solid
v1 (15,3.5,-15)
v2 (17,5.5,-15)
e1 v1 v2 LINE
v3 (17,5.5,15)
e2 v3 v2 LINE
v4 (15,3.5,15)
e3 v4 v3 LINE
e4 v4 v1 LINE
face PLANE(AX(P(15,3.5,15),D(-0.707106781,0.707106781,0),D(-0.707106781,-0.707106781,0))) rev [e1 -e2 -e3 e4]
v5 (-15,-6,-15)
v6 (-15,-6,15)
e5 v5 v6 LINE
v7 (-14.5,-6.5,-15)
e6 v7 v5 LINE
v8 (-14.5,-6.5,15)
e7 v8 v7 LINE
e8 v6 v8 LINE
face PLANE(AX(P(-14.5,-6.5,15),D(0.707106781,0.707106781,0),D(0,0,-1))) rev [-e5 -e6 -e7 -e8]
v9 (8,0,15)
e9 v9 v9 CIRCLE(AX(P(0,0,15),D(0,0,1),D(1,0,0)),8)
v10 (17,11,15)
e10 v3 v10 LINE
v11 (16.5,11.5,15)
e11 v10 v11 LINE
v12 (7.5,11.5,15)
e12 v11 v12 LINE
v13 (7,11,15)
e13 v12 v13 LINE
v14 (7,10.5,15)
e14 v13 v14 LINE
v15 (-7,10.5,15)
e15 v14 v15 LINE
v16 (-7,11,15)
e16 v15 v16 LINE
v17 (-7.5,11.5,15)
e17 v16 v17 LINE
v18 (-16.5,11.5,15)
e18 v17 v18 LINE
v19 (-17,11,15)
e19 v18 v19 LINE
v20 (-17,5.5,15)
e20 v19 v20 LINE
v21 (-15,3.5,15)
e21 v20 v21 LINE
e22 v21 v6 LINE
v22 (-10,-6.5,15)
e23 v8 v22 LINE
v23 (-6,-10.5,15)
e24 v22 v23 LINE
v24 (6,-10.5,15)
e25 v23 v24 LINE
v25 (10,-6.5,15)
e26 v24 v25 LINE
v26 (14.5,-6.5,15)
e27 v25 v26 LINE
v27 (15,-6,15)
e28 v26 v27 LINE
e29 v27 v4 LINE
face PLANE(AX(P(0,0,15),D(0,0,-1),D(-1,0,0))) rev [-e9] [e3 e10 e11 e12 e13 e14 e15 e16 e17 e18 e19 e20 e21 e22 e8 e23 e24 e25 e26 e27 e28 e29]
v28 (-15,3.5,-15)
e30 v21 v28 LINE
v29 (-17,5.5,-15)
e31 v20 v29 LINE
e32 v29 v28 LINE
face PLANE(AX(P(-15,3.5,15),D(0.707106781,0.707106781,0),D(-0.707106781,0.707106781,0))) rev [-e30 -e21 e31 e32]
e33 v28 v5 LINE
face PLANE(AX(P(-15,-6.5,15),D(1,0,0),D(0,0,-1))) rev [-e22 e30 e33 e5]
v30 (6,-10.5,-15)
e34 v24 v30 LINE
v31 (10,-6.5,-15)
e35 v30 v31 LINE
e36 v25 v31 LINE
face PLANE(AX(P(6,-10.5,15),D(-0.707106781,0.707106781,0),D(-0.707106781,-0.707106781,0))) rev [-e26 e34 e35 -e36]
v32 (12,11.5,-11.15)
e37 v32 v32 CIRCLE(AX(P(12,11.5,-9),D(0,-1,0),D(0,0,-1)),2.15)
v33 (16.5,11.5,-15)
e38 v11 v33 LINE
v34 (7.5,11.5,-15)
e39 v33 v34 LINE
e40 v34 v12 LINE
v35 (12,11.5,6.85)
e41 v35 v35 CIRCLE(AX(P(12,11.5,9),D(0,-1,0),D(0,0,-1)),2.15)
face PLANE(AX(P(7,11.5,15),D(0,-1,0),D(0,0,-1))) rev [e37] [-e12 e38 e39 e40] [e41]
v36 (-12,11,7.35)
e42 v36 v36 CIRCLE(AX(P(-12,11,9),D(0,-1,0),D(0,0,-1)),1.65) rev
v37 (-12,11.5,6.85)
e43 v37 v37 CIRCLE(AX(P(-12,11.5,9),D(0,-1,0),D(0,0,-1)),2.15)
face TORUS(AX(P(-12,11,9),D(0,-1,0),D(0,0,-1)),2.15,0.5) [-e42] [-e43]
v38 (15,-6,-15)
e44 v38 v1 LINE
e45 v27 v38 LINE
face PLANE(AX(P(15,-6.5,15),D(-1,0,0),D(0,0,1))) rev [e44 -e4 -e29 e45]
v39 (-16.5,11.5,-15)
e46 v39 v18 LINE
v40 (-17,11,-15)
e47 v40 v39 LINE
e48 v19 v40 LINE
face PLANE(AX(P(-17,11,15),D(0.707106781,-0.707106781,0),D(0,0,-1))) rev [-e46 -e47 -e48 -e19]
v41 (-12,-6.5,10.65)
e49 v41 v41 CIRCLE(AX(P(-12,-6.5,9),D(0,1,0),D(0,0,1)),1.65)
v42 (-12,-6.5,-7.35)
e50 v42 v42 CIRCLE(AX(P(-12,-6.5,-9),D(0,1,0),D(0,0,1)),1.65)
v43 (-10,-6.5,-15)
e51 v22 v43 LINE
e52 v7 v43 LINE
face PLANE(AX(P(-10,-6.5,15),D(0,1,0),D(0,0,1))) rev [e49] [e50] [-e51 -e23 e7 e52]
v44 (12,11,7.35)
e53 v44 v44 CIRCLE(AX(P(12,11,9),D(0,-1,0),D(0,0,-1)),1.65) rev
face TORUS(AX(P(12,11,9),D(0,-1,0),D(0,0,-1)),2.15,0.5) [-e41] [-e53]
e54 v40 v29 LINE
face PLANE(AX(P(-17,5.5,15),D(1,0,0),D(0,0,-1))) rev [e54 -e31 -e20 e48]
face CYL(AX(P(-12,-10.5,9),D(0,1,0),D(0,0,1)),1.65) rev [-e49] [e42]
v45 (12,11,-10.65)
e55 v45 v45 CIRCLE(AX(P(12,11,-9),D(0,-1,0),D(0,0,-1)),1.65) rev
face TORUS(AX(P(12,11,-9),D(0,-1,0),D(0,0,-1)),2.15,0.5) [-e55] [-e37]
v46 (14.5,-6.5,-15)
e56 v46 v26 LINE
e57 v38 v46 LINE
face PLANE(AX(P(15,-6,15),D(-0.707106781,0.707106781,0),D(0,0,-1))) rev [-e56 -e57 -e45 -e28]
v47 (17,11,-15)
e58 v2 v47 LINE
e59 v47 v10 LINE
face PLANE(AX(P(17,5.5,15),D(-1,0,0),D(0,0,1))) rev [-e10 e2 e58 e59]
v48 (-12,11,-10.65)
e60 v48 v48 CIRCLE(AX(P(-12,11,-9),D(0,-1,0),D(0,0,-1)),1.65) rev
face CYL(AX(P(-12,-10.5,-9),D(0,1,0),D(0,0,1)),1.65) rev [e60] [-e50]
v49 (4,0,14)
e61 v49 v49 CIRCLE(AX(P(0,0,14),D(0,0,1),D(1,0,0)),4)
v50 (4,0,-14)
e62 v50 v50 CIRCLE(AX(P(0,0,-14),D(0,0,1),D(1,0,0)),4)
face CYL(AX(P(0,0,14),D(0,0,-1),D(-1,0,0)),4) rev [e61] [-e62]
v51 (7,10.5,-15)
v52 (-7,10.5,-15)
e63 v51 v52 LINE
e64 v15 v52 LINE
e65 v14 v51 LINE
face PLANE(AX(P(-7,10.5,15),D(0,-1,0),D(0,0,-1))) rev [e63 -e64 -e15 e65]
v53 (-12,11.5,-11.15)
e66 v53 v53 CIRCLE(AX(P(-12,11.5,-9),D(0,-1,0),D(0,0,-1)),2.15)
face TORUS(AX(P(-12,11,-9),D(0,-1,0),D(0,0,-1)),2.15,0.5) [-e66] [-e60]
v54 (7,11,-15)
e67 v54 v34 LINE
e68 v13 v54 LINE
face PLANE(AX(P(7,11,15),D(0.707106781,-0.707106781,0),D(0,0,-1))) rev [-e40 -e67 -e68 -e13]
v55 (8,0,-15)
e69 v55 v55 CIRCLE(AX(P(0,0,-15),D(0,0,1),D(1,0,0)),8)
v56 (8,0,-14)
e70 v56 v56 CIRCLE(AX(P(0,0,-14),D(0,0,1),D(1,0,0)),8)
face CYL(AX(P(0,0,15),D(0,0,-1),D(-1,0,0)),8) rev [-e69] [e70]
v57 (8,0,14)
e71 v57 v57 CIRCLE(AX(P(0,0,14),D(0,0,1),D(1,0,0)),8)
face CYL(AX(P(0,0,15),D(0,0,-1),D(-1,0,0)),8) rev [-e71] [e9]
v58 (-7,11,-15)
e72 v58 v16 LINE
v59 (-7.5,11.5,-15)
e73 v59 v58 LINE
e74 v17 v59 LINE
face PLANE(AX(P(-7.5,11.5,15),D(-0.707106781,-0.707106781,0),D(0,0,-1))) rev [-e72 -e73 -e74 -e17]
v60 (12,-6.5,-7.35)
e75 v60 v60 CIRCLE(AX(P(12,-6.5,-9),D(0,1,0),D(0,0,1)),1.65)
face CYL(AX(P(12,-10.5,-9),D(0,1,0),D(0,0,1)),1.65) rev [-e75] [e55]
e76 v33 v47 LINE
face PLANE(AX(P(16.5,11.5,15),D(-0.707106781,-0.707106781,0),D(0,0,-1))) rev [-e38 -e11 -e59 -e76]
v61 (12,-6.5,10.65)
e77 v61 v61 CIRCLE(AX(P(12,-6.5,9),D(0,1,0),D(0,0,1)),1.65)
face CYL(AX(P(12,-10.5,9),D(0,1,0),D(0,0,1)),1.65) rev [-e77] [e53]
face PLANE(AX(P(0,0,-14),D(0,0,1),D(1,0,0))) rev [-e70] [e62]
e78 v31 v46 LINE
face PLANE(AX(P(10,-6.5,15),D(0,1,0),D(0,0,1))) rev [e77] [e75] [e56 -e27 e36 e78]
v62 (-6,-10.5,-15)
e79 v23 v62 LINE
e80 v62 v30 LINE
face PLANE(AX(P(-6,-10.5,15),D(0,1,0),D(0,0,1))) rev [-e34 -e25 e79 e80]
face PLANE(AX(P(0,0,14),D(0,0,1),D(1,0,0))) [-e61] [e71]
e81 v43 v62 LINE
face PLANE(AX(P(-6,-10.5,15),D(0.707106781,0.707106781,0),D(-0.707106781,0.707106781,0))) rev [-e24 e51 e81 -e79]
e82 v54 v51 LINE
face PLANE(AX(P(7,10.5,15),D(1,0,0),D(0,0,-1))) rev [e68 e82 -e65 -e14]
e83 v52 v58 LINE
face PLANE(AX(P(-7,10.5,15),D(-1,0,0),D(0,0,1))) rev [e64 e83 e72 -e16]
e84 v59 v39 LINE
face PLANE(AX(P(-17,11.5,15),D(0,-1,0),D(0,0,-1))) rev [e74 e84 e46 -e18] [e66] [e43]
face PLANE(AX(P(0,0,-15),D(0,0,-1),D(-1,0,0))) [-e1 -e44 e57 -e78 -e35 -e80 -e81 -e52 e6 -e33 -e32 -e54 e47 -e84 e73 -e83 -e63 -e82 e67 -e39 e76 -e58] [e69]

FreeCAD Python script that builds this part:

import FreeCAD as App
import Part
import Sketcher


def edges_at(feature, points):
    """Names of the edges that pass closest to the given points."""
    edges = feature.Shape.Edges
    near = lambda p: min(range(len(edges)), key=lambda i: edges[i].distToShape(Part.Vertex(*p))[0])
    return sorted({f"Edge{near(p) + 1}" for p in points})


def add_polygon(sketch, points):
    """Adds a closed chain of lines whose ends are joined by coincident constraints."""
    first, n = sketch.GeometryCount, len(points)
    for a, b in zip(points, points[1:] + points[:1]):
        sketch.addGeometry(Part.LineSegment(App.Vector(*a, 0), App.Vector(*b, 0)), False)
    for i in range(n):
        sketch.addConstraint(Sketcher.Constraint("Coincident", first + i, 2, first + (i + 1) % n, 1))

doc = App.newDocument("Part")
params = doc.addObject("Spreadsheet::Sheet", "Params")
for row, (alias, value) in enumerate([
    ("sketch1_diameter", "16 mm"),
    ("sketch1_width", "10 mm"),
    ("sketch1_width2", "5 mm"),
    ("sketch1_width3", "12 mm"),
    ("sketch1_width4", "14 mm"),
    ("pad1_length", "30 mm"),
    ("sketch2_diameter", "3.3 mm"),
    ("sketch3_diameter", "16 mm"),
    ("sketch3_diameter2", "8 mm"),
    ("pad2_length", "28 mm"),
    ("fillet_radius", "0.5 mm"),
    ("chamfer_size", "0.5 mm"),
], start=1):
    params.set(f"A{row}", alias)
    params.set(f"B{row}", "=" + value)
    params.setAlias(f"B{row}", alias)

body = doc.addObject("PartDesign::Body", "Body")

# Sketch on XY plane
sketch1 = body.newObject("Sketcher::SketchObject", "Sketch")
sketch1.AttachmentSupport = (doc.getObject("XY_Plane"), [""])
sketch1.MapMode = "FlatFace"
add_polygon(sketch1, [(-7, 11.5), (-17, 11.5), (-17, 5.5), (-15, 3.5), (-15, -6.5), (-10, -6.5), (-6, -10.5), (6, -10.5), (10, -6.5), (15, -6.5), (15, 3.5), (17, 5.5), (17, 11.5), (7, 11.5), (7, 10.5), (-7, 10.5)])  # lines 0-15
sketch1.addGeometry(Part.Circle(App.Vector(0, 0, 0), App.Vector(0, 0, 1), 8), False)  # 16
sketch1.addConstraint(Sketcher.Constraint("Horizontal", 0))
sketch1.addConstraint(Sketcher.Constraint("Vertical", 1))
sketch1.addConstraint(Sketcher.Constraint("Vertical", 3))
sketch1.addConstraint(Sketcher.Constraint("Horizontal", 4))
sketch1.addConstraint(Sketcher.Constraint("Horizontal", 6))
sketch1.addConstraint(Sketcher.Constraint("Horizontal", 8))
sketch1.addConstraint(Sketcher.Constraint("Vertical", 9))
sketch1.addConstraint(Sketcher.Constraint("Vertical", 11))
sketch1.addConstraint(Sketcher.Constraint("Horizontal", 12))
sketch1.addConstraint(Sketcher.Constraint("Vertical", 13))
sketch1.addConstraint(Sketcher.Constraint("Horizontal", 14))
sketch1.addConstraint(Sketcher.Constraint("Vertical", 15))
sketch1.addConstraint(Sketcher.Constraint("Coincident", 16, 3, -1, 1))
sketch1.addConstraint(Sketcher.Constraint("Symmetric", 4, 2, 7, 2, -2))
sketch1.addConstraint(Sketcher.Constraint("Symmetric", 2, 2, 9, 2, -2))
sketch1.addConstraint(Sketcher.Constraint("Symmetric", 1, 2, 10, 2, -2))
sketch1.addConstraint(Sketcher.Constraint("Symmetric", 12, 2, 15, 2, -2))
sketch1.addConstraint(Sketcher.Constraint("Parallel", 2, 5))
sketch1.addConstraint(Sketcher.Constraint("Perpendicular", 5, 7))
sketch1.addConstraint(Sketcher.Constraint("Parallel", 7, 10))
sketch1.addConstraint(Sketcher.Constraint("Equal", 12, 3))
sketch1.addConstraint(Sketcher.Constraint("Diameter", 16, 16.0))
sketch1.addConstraint(Sketcher.Constraint("DistanceX", 0, 2, 0, 1, 10.0))
sketch1.addConstraint(Sketcher.Constraint("DistanceX", 4, 1, 4, 2, 5.0))
sketch1.addConstraint(Sketcher.Constraint("DistanceX", 6, 1, 6, 2, 12.0))
sketch1.addConstraint(Sketcher.Constraint("DistanceX", 14, 2, 14, 1, 14.0))
sketch1.addConstraint(Sketcher.Constraint("DistanceY", 1, 2, 1, 1, 6.0))
sketch1.addConstraint(Sketcher.Constraint("DistanceY", 13, 2, 13, 1, 1.0))
sketch1.addConstraint(Sketcher.Constraint("DistanceX", 2, 2, -1, 1, 15.0))
sketch1.addConstraint(Sketcher.Constraint("DistanceY", -1, 1, 0, 2, 11.5))
sketch1.setExpression("Constraints[37]", "Params.sketch1_diameter")
sketch1.setExpression("Constraints[38]", "Params.sketch1_width")
sketch1.setExpression("Constraints[39]", "Params.sketch1_width2")
sketch1.setExpression("Constraints[40]", "Params.sketch1_width3")
sketch1.setExpression("Constraints[41]", "Params.sketch1_width4")
pad1 = body.newObject("PartDesign::Pad", "Pad")
pad1.Profile = sketch1
pad1.setExpression("Length", "Params.pad1_length")
pad1.Midplane = True

# Sketch on XZ plane
sketch2 = body.newObject("Sketcher::SketchObject", "Sketch001")
sketch2.AttachmentSupport = (doc.getObject("XZ_Plane"), [""])
sketch2.MapMode = "FlatFace"
sketch2.AttachmentOffset = App.Placement(App.Vector(0, 0, -11.5), App.Rotation())
sketch2.addGeometry(Part.Circle(App.Vector(-12, -9, 0), App.Vector(0, 0, 1), 1.65), False)
sketch2.addGeometry(Part.Circle(App.Vector(-12, 9, 0), App.Vector(0, 0, 1), 1.65), False)
sketch2.addGeometry(Part.Circle(App.Vector(12, 9, 0), App.Vector(0, 0, 1), 1.65), False)
sketch2.addGeometry(Part.Circle(App.Vector(12, -9, 0), App.Vector(0, 0, 1), 1.65), False)
sketch2.addConstraint(Sketcher.Constraint("Equal", 0, 1))
sketch2.addConstraint(Sketcher.Constraint("Equal", 1, 2))
sketch2.addConstraint(Sketcher.Constraint("Equal", 2, 3))
sketch2.addConstraint(Sketcher.Constraint("Symmetric", 0, 3, 2, 3, -1, 1))
sketch2.addConstraint(Sketcher.Constraint("Symmetric", 1, 3, 3, 3, -1, 1))
sketch2.addConstraint(Sketcher.Constraint("Symmetric", 1, 3, 2, 3, -2))
sketch2.addConstraint(Sketcher.Constraint("Diameter", 0, 3.3))
sketch2.addConstraint(Sketcher.Constraint("DistanceX", 0, 3, -1, 1, 12.0))
sketch2.addConstraint(Sketcher.Constraint("DistanceY", 0, 3, -1, 1, 9.0))
sketch2.setExpression("Constraints[6]", "Params.sketch2_diameter")
pocket1 = body.newObject("PartDesign::Pocket", "Pocket")
pocket1.Profile = sketch2
pocket1.Type = "ThroughAll"
pocket1.Reversed = True

# Sketch on XY plane
sketch3 = body.newObject("Sketcher::SketchObject", "Sketch002")
sketch3.AttachmentSupport = (doc.getObject("XY_Plane"), [""])
sketch3.MapMode = "FlatFace"
sketch3.addGeometry(Part.Circle(App.Vector(0, 0, 0), App.Vector(0, 0, 1), 8), False)
sketch3.addGeometry(Part.Circle(App.Vector(0, 0, 0), App.Vector(0, 0, 1), 4), False)
sketch3.addConstraint(Sketcher.Constraint("Coincident", 0, 3, -1, 1))
sketch3.addConstraint(Sketcher.Constraint("Coincident", 1, 3, -1, 1))
sketch3.addConstraint(Sketcher.Constraint("Diameter", 0, 16.0))
sketch3.addConstraint(Sketcher.Constraint("Diameter", 1, 8.0))
sketch3.setExpression("Constraints[2]", "Params.sketch3_diameter")
sketch3.setExpression("Constraints[3]", "Params.sketch3_diameter2")
pad2 = body.newObject("PartDesign::Pad", "Pad001")
pad2.Profile = sketch3
pad2.setExpression("Length", "Params.pad2_length")
pad2.Midplane = True
doc.recompute()

fillet = body.newObject("PartDesign::Fillet", "Fillet")
fillet.Base = (pad2, edges_at(pad2, [
    (-13.65, 11.5, -9),
    (-13.65, 11.5, 9),
    (10.35, 11.5, 9),
    (10.35, 11.5, -9),
]))
fillet.setExpression("Radius", "Params.fillet_radius")
doc.recompute()

chamfer = body.newObject("PartDesign::Chamfer", "Chamfer")
chamfer.Base = (fillet, edges_at(fillet, [
    (-17, 11.5, 0),
    (-7, 11.5, 0),
    (7, 11.5, 0),
    (17, 11.5, 0),
    (15, -6.5, 0),
    (-15, -6.5, 0),
]))
chamfer.setExpression("Size", "Params.chamfer_size")

doc.recompute()
